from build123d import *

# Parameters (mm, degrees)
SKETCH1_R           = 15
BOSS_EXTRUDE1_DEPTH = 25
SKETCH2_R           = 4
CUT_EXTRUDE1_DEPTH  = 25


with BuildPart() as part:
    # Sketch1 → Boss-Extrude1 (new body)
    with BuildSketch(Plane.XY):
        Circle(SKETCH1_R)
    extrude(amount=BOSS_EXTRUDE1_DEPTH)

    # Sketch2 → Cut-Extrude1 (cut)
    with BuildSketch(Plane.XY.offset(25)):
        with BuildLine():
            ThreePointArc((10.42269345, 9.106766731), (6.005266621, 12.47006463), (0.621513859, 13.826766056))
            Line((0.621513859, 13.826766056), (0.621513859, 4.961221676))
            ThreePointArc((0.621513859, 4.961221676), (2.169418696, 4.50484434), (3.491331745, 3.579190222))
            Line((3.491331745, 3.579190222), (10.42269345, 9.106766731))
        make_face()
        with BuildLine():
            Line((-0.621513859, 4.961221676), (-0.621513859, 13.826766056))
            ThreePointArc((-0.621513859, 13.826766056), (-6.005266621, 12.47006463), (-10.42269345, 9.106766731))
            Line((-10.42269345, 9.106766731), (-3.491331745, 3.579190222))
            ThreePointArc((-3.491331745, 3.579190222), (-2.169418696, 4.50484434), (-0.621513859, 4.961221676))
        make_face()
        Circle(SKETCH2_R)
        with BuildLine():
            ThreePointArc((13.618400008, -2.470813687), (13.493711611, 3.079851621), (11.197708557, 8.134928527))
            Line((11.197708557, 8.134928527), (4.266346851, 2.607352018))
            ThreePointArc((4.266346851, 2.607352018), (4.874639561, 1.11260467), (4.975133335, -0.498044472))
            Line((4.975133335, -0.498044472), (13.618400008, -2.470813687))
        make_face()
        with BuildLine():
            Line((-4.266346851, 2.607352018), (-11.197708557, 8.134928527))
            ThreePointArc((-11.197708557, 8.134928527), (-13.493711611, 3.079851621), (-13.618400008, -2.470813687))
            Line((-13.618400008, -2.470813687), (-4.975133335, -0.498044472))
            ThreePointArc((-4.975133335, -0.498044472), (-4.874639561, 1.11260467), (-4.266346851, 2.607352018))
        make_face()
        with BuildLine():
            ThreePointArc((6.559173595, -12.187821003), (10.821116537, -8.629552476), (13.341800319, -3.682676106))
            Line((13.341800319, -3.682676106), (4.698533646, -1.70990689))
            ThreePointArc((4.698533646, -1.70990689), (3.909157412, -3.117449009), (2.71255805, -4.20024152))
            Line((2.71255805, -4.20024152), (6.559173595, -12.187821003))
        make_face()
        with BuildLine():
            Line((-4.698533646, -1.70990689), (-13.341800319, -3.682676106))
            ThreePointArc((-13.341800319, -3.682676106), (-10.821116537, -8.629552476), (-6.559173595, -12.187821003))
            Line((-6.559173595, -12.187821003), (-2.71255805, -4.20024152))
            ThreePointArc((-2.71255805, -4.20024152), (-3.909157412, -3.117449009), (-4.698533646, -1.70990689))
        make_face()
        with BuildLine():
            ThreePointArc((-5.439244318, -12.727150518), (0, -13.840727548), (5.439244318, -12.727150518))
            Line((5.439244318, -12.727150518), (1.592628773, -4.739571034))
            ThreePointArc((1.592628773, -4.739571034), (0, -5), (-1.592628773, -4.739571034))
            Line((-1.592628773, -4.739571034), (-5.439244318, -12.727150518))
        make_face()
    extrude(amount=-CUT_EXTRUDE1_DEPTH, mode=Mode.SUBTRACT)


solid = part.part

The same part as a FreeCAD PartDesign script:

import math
import FreeCAD as App
import Part
import Sketcher

doc = App.newDocument("Part")
body = doc.addObject("PartDesign::Body", "Body")

sketch1 = doc.addObject("Sketcher::SketchObject", "Sketch")
body.addObject(sketch1)
sketch1.AttachmentSupport = (doc.XY_Plane, [""])
sketch1.MapMode = "FlatFace"
sketch1.addGeometry(Part.Circle(App.Vector(0, 0, 0), App.Vector(0, 0, 1), 15), False)
sketch1.addConstraint(Sketcher.Constraint("Coincident", 0, 3, -1, 1))
sketch1.addConstraint(Sketcher.Constraint("Diameter", 0, 30.0))
pad1 = doc.addObject("PartDesign::Pad", "Pad")
body.addObject(pad1)
pad1.Profile = sketch1
pad1.Length = 25

sketch2 = doc.addObject("Sketcher::SketchObject", "Sketch001")
body.addObject(sketch2)
sketch2.AttachmentSupport = (doc.XY_Plane, [""])
sketch2.MapMode = "FlatFace"
sketch2.AttachmentOffset = App.Placement(App.Vector(0, 0, 25), App.Rotation())
sketch2.addGeometry(Part.ArcOfCircle(Part.Circle(App.Vector(0, 0, 0), App.Vector(0, 0, 1), 13.840728), math.radians(41.145144), math.radians(87.426284)), False)
sketch2.addGeometry(Part.LineSegment(App.Vector(0.621514, 13.826766, 0), App.Vector(0.621514, 4.961222, 0)), False)
sketch2.addGeometry(Part.ArcOfCircle(Part.Circle(App.Vector(0, 0, 0), App.Vector(0, 0, 1), 5), math.radians(45.711922), math.radians(82.859507)), False)
sketch2.addGeometry(Part.LineSegment(App.Vector(3.491332, 3.57919, 0), App.Vector(10.422693, 9.106767, 0)), False)
sketch2.addGeometry(Part.LineSegment(App.Vector(-0.621514, 4.961222, 0), App.Vector(-0.621514, 13.826766, 0)), False)
sketch2.addGeometry(Part.ArcOfCircle(Part.Circle(App.Vector(0, 0, 0), App.Vector(0, 0, 1), 13.840728), math.radians(92.573716), math.radians(138.854856)), False)
sketch2.addGeometry(Part.LineSegment(App.Vector(-10.422693, 9.106767, 0), App.Vector(-3.491332, 3.57919, 0)), False)
sketch2.addGeometry(Part.ArcOfCircle(Part.Circle(App.Vector(0, 0, 0), App.Vector(0, 0, 1), 5), math.radians(97.140493), math.radians(134.288078)), False)
sketch2.addGeometry(Part.Circle(App.Vector(0, 0, 0), App.Vector(0, 0, 1), 4), False)
sketch2.addGeometry(Part.ArcOfCircle(Part.Circle(App.Vector(0, 0, 0), App.Vector(0, 0, 1), 13.840728), math.radians(-10.283427), math.radians(35.997713)), False)
sketch2.addGeometry(Part.LineSegment(App.Vector(11.197709, 8.134929, 0), App.Vector(4.266347, 2.607352, 0)), False)
sketch2.addGeometry(Part.ArcOfCircle(Part.Circle(App.Vector(0, 0, 0), App.Vector(0, 0, 1), 5), math.radians(-5.716649), math.radians(31.430935)), False)
sketch2.addGeometry(Part.LineSegment(App.Vector(4.975133, -0.498044, 0), App.Vector(13.6184, -2.470814, 0)), False)
sketch2.addGeometry(Part.LineSegment(App.Vector(-4.266347, 2.607352, 0), App.Vector(-11.197709, 8.134929, 0)), False)
sketch2.addGeometry(Part.ArcOfCircle(Part.Circle(App.Vector(0, 0, 0), App.Vector(0, 0, 1), 13.840728), math.radians(144.002287), math.radians(190.283427)), False)
sketch2.addGeometry(Part.LineSegment(App.Vector(-13.6184, -2.470814, 0), App.Vector(-4.975133, -0.498044, 0)), False)
sketch2.addGeometry(Part.ArcOfCircle(Part.Circle(App.Vector(0, 0, 0), App.Vector(0, 0, 1), 5), math.radians(148.569065), math.radians(185.716649)), False)
sketch2.addGeometry(Part.ArcOfCircle(Part.Circle(App.Vector(0, 0, 0), App.Vector(0, 0, 1), 13.840728), math.radians(-61.711998), math.radians(-15.430859)), False)
sketch2.addGeometry(Part.LineSegment(App.Vector(13.3418, -3.682676, 0), App.Vector(4.698534, -1.709907, 0)), False)
sketch2.addGeometry(Part.ArcOfCircle(Part.Circle(App.Vector(0, 0, 0), App.Vector(0, 0, 1), 5), math.radians(-57.145221), math.radians(-19.997636)), False)
sketch2.addGeometry(Part.LineSegment(App.Vector(2.712558, -4.200242, 0), App.Vector(6.559174, -12.187821, 0)), False)
sketch2.addGeometry(Part.LineSegment(App.Vector(-4.698534, -1.709907, 0), App.Vector(-13.3418, -3.682676, 0)), False)
sketch2.addGeometry(Part.ArcOfCircle(Part.Circle(App.Vector(0, 0, 0), App.Vector(0, 0, 1), 13.840728), math.radians(-164.569141), math.radians(-118.288002)), False)
sketch2.addGeometry(Part.LineSegment(App.Vector(-6.559174, -12.187821, 0), App.Vector(-2.712558, -4.200242, 0)), False)
sketch2.addGeometry(Part.ArcOfCircle(Part.Circle(App.Vector(0, 0, 0), App.Vector(0, 0, 1), 5), math.radians(-160.002364), math.radians(-122.854779)), False)
sketch2.addGeometry(Part.ArcOfCircle(Part.Circle(App.Vector(0, 0, 0), App.Vector(0, 0, 1), 13.840728), math.radians(-113.14057), math.radians(-66.85943)), False)
sketch2.addGeometry(Part.LineSegment(App.Vector(5.439244, -12.727151, 0), App.Vector(1.592629, -4.739571, 0)), False)
sketch2.addGeometry(Part.ArcOfCircle(Part.Circle(App.Vector(0, 0, 0), App.Vector(0, 0, 1), 5), math.radians(-108.573792), math.radians(-71.426208)), False)
sketch2.addGeometry(Part.LineSegment(App.Vector(-1.592629, -4.739571, 0), App.Vector(-5.439244, -12.727151, 0)), False)
sketch2.addConstraint(Sketcher.Constraint("Coincident", 0, 2, 1, 1))
sketch2.addConstraint(Sketcher.Constraint("Coincident", 1, 2, 2, 2))
sketch2.addConstraint(Sketcher.Constraint("Coincident", 2, 1, 3, 1))
sketch2.addConstraint(Sketcher.Constraint("Coincident", 3, 2, 0, 1))
sketch2.addConstraint(Sketcher.Constraint("Coincident", 4, 2, 5, 1))
sketch2.addConstraint(Sketcher.Constraint("Coincident", 5, 2, 6, 1))
sketch2.addConstraint(Sketcher.Constraint("Coincident", 6, 2, 7, 2))
sketch2.addConstraint(Sketcher.Constraint("Coincident", 7, 1, 4, 1))
sketch2.addConstraint(Sketcher.Constraint("Coincident", 9, 2, 10, 1))
sketch2.addConstraint(Sketcher.Constraint("Coincident", 10, 2, 11, 2))
sketch2.addConstraint(Sketcher.Constraint("Coincident", 11, 1, 12, 1))
sketch2.addConstraint(Sketcher.Constraint("Coincident", 12, 2, 9, 1))
sketch2.addConstraint(Sketcher.Constraint("Coincident", 13, 2, 14, 1))
sketch2.addConstraint(Sketcher.Constraint("Coincident", 14, 2, 15, 1))
sketch2.addConstraint(Sketcher.Constraint("Coincident", 15, 2, 16, 2))
sketch2.addConstraint(Sketcher.Constraint("Coincident", 16, 1, 13, 1))
sketch2.addConstraint(Sketcher.Constraint("Coincident", 17, 2, 18, 1))
sketch2.addConstraint(Sketcher.Constraint("Coincident", 18, 2, 19, 2))
sketch2.addConstraint(Sketcher.Constraint("Coincident", 19, 1, 20, 1))
sketch2.addConstraint(Sketcher.Constraint("Coincident", 20, 2, 17, 1))
sketch2.addConstraint(Sketcher.Constraint("Coincident", 21, 2, 22, 1))
sketch2.addConstraint(Sketcher.Constraint("Coincident", 22, 2, 23, 1))
sketch2.addConstraint(Sketcher.Constraint("Coincident", 23, 2, 24, 2))
sketch2.addConstraint(Sketcher.Constraint("Coincident", 24, 1, 21, 1))
sketch2.addConstraint(Sketcher.Constraint("Coincident", 25, 2, 26, 1))
sketch2.addConstraint(Sketcher.Constraint("Coincident", 26, 2, 27, 2))
sketch2.addConstraint(Sketcher.Constraint("Coincident", 27, 1, 28, 1))
sketch2.addConstraint(Sketcher.Constraint("Coincident", 28, 2, 25, 1))
sketch2.addConstraint(Sketcher.Constraint("Vertical", 1))
sketch2.addConstraint(Sketcher.Constraint("Vertical", 4))
sketch2.addConstraint(Sketcher.Constraint("Coincident", 0, 3, -1, 1))
sketch2.addConstraint(Sketcher.Constraint("Coincident", 2, 3, -1, 1))
sketch2.addConstraint(Sketcher.Constraint("Coincident", 5, 3, -1, 1))
sketch2.addConstraint(Sketcher.Constraint("Coincident", 7, 3, -1, 1))
sketch2.addConstraint(Sketcher.Constraint("Coincident", 8, 3, -1, 1))
sketch2.addConstraint(Sketcher.Constraint("Coincident", 9, 3, -1, 1))
sketch2.addConstraint(Sketcher.Constraint("Coincident", 11, 3, -1, 1))
sketch2.addConstraint(Sketcher.Constraint("Coincident", 14, 3, -1, 1))
sketch2.addConstraint(Sketcher.Constraint("Coincident", 16, 3, -1, 1))
sketch2.addConstraint(Sketcher.Constraint("Coincident", 17, 3, -1, 1))
sketch2.addConstraint(Sketcher.Constraint("Coincident", 19, 3, -1, 1))
sketch2.addConstraint(Sketcher.Constraint("Coincident", 22, 3, -1, 1))
sketch2.addConstraint(Sketcher.Constraint("Coincident", 24, 3, -1, 1))
sketch2.addConstraint(Sketcher.Constraint("Coincident", 25, 3, -1, 1))
sketch2.addConstraint(Sketcher.Constraint("Coincident", 27, 3, -1, 1))
sketch2.addConstraint(Sketcher.Constraint("Equal", 0, 5))
sketch2.addConstraint(Sketcher.Constraint("Equal", 2, 7))
sketch2.addConstraint(Sketcher.Constraint("Equal", 5, 9))
sketch2.addConstraint(Sketcher.Constraint("Equal", 7, 11))
sketch2.addConstraint(Sketcher.Constraint("Equal", 9, 14))
sketch2.addConstraint(Sketcher.Constraint("Equal", 11, 16))
sketch2.addConstraint(Sketcher.Constraint("Equal", 14, 17))
sketch2.addConstraint(Sketcher.Constraint("Equal", 16, 19))
sketch2.addConstraint(Sketcher.Constraint("Equal", 17, 22))
sketch2.addConstraint(Sketcher.Constraint("Equal", 19, 24))
sketch2.addConstraint(Sketcher.Constraint("Equal", 22, 25))
sketch2.addConstraint(Sketcher.Constraint("Equal", 24, 27))
sketch2.addConstraint(Sketcher.Constraint("Parallel", 3, 10))
sketch2.addConstraint(Sketcher.Constraint("Parallel", 6, 13))
sketch2.addConstraint(Sketcher.Constraint("Parallel", 12, 18))
sketch2.addConstraint(Sketcher.Constraint("Parallel", 15, 21))
sketch2.addConstraint(Sketcher.Constraint("Parallel", 20, 26))
sketch2.addConstraint(Sketcher.Constraint("Parallel", 23, 28))
sketch2.addConstraint(Sketcher.Constraint("Horizontal", 0, 2, 4, 2))
sketch2.addConstraint(Sketcher.Constraint("Horizontal", 3, 2, 5, 2))
sketch2.addConstraint(Sketcher.Constraint("Horizontal", 2, 1, 6, 2))
sketch2.addConstraint(Sketcher.Constraint("Horizontal", 9, 2, 13, 2))
sketch2.addConstraint(Sketcher.Constraint("Horizontal", 12, 2, 14, 2))
sketch2.addConstraint(Sketcher.Constraint("Horizontal", 11, 1, 15, 2))
sketch2.addConstraint(Sketcher.Constraint("Horizontal", 17, 2, 21, 2))
sketch2.addConstraint(Sketcher.Constraint("Horizontal", 20, 2, 22, 2))
sketch2.addConstraint(Sketcher.Constraint("Horizontal", 19, 1, 23, 2))
sketch2.addConstraint(Sketcher.Constraint("Horizontal", 26, 2, 27, 1))
sketch2.addConstraint(Sketcher.Constraint("Equal", 6, 10))
sketch2.addConstraint(Sketcher.Constraint("Equal", 10, 12))
sketch2.addConstraint(Sketcher.Constraint("Equal", 15, 18))
sketch2.addConstraint(Sketcher.Constraint("Equal", 18, 20))
sketch2.addConstraint(Sketcher.Constraint("Equal", 23, 26))
sketch2.addConstraint(Sketcher.Constraint("Diameter", 8, 8.0))
sketch2.addConstraint(Sketcher.Constraint("Radius", 2, 5.0))
sketch2.addConstraint(Sketcher.Constraint("DistanceY", 3, 2, 0, 2, 4.719999))
sketch2.addConstraint(Sketcher.Constraint("Radius", 0, 13.840728))
sketch2.addConstraint(Sketcher.Constraint("DistanceX", -1, 1, 12, 2, 13.6184))
sketch2.addConstraint(Sketcher.Constraint("DistanceX", -1, 1, 17, 2, 13.3418))
sketch2.addConstraint(Sketcher.Constraint("DistanceX", 15, 2, 6, 2, 1.483802))
sketch2.addConstraint(Sketcher.Constraint("DistanceX", -1, 1, 19, 1, 2.712558))
pocket1 = doc.addObject("PartDesign::Pocket", "Pocket")
body.addObject(pocket1)
pocket1.Profile = sketch2
pocket1.Length = 25

doc.recompute()
